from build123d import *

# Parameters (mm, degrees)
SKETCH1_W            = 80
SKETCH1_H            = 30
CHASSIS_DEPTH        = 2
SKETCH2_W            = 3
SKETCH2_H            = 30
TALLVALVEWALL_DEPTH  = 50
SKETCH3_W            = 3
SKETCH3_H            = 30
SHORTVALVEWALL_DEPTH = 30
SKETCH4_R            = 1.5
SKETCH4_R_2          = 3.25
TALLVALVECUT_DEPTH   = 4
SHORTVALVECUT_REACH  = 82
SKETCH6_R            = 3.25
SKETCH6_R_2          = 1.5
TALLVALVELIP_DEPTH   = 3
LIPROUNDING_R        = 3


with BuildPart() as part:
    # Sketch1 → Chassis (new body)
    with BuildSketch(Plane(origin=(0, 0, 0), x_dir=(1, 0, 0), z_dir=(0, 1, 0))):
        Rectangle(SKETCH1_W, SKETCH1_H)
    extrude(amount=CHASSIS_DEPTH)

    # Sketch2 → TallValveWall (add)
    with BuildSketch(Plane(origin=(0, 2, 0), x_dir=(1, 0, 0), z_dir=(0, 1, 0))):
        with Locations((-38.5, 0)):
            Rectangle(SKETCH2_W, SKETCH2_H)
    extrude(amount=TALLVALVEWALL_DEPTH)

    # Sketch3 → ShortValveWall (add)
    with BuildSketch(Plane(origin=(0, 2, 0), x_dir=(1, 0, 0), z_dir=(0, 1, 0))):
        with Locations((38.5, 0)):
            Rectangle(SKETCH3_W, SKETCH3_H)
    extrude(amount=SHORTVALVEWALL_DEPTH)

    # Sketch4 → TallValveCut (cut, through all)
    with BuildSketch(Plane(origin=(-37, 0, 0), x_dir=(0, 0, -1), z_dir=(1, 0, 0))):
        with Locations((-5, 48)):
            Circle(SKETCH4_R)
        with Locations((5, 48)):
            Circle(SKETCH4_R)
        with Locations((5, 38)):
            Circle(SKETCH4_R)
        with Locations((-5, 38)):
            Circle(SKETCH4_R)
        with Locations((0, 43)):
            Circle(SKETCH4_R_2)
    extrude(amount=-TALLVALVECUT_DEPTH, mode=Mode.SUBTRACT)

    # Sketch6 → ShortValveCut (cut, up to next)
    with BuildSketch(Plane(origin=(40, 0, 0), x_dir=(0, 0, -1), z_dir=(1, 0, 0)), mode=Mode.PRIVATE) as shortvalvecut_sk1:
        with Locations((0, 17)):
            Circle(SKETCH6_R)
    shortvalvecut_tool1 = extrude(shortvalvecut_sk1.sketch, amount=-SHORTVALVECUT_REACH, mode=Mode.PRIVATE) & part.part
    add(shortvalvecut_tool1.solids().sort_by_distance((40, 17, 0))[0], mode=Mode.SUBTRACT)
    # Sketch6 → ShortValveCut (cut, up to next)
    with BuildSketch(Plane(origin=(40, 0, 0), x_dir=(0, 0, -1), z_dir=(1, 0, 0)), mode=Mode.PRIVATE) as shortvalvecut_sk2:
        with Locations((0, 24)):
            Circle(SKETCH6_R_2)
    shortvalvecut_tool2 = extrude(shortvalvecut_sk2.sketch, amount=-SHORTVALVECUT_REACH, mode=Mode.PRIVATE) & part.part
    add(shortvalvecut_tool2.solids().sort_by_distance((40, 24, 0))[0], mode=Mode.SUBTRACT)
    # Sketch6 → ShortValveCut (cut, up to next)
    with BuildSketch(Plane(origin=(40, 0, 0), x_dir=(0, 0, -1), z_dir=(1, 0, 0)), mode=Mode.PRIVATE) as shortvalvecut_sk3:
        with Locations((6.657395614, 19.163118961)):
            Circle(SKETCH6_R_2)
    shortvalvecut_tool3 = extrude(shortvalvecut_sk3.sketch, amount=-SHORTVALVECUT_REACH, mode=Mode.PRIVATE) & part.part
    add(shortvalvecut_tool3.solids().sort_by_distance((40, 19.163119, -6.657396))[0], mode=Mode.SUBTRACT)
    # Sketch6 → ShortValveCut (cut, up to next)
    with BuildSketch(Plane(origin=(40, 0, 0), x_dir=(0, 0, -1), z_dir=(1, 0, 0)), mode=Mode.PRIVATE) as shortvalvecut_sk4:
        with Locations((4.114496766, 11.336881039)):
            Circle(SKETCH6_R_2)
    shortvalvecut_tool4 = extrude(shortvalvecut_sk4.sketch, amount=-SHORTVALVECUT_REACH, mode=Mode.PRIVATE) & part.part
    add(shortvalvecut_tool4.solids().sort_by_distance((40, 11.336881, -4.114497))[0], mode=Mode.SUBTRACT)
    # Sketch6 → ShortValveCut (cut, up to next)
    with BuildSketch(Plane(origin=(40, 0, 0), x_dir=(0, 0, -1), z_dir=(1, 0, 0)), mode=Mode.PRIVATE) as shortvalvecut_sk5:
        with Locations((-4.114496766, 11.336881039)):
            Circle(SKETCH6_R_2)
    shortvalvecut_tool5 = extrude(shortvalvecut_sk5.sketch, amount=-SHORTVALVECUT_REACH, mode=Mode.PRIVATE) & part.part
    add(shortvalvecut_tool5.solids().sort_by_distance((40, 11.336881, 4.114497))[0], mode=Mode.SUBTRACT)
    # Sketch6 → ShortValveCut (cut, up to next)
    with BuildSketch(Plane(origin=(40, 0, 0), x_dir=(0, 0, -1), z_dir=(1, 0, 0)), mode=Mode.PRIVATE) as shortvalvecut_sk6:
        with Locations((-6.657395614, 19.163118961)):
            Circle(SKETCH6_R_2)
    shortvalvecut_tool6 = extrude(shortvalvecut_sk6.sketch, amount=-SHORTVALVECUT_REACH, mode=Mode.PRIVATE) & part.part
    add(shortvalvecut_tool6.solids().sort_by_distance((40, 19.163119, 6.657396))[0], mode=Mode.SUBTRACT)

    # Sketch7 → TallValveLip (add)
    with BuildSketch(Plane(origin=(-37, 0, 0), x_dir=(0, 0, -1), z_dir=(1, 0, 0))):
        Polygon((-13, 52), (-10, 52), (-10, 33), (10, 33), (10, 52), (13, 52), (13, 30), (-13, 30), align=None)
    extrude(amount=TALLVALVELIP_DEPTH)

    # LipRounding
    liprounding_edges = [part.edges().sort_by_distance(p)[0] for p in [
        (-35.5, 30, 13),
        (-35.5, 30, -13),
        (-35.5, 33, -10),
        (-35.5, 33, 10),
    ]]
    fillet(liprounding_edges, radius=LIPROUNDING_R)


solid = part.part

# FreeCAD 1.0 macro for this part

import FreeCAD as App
import Part
import Sketcher
from FreeCAD import Vector


def edges_at(feature, points):
    """Names of the edges that pass closest to the given points."""
    edges = feature.Shape.Edges
    near = lambda p: min(range(len(edges)), key=lambda i: edges[i].distToShape(Part.Vertex(*p))[0])
    return sorted({f"Edge{near(p) + 1}" for p in points})

doc = App.newDocument("Part")
body = doc.addObject("PartDesign::Body", "Body")

# Sketch on XZ plane
sketch1 = doc.addObject("Sketcher::SketchObject", "Sketch")
body.addObject(sketch1)
sketch1.AttachmentSupport = (doc.XZ_Plane, [""])
sketch1.MapMode = "FlatFace"
sketch1.addGeometry([
    Part.LineSegment(Vector(-40, -15, 0), Vector(-40, 15, 0)),
    Part.LineSegment(Vector(-40, 15, 0), Vector(40, 15, 0)),
    Part.LineSegment(Vector(40, 15, 0), Vector(40, -15, 0)),
    Part.LineSegment(Vector(40, -15, 0), Vector(-40, -15, 0)),
], False)
sketch1.addConstraint([
    Sketcher.Constraint("Coincident", 0, 2, 1, 1),
    Sketcher.Constraint("Coincident", 1, 2, 2, 1),
    Sketcher.Constraint("Coincident", 2, 2, 3, 1),
    Sketcher.Constraint("Coincident", 3, 2, 0, 1),
    Sketcher.Constraint("Vertical", 0),
    Sketcher.Constraint("Horizontal", 1),
    Sketcher.Constraint("Vertical", 2),
    Sketcher.Constraint("Horizontal", 3),
    Sketcher.Constraint("Symmetric", 0, 2, 2, 2, -1, 1),
    Sketcher.Constraint("DistanceX", 1, 1, 1, 2, 80.0),
    Sketcher.Constraint("DistanceY", 0, 1, 0, 2, 30.0),
])
pad1 = doc.addObject("PartDesign::Pad", "Pad")
body.addObject(pad1)
pad1.Profile = sketch1
pad1.Length = 2
pad1.Reversed = True

# Sketch on XZ plane
sketch2 = doc.addObject("Sketcher::SketchObject", "Sketch001")
body.addObject(sketch2)
sketch2.AttachmentSupport = (doc.XZ_Plane, [""])
sketch2.MapMode = "FlatFace"
sketch2.AttachmentOffset = App.Placement(Vector(0, 0, -2), App.Rotation())
sketch2.addGeometry([
    Part.LineSegment(Vector(-40, -15, 0), Vector(-40, 15, 0)),
    Part.LineSegment(Vector(-40, 15, 0), Vector(-37, 15, 0)),
    Part.LineSegment(Vector(-37, 15, 0), Vector(-37, -15, 0)),
    Part.LineSegment(Vector(-37, -15, 0), Vector(-40, -15, 0)),
], False)
sketch2.addConstraint([
    Sketcher.Constraint("Coincident", 0, 2, 1, 1),
    Sketcher.Constraint("Coincident", 1, 2, 2, 1),
    Sketcher.Constraint("Coincident", 2, 2, 3, 1),
    Sketcher.Constraint("Coincident", 3, 2, 0, 1),
    Sketcher.Constraint("Vertical", 0),
    Sketcher.Constraint("Horizontal", 1),
    Sketcher.Constraint("Vertical", 2),
    Sketcher.Constraint("Horizontal", 3),
    Sketcher.Constraint("DistanceX", 1, 1, 1, 2, 3.0),
    Sketcher.Constraint("DistanceY", 0, 1, 0, 2, 30.0),
    Sketcher.Constraint("DistanceX", 0, 2, -1, 1, 40.0),
    Sketcher.Constraint("DistanceY", -1, 1, 0, 2, 15.0),
])
pad2 = doc.addObject("PartDesign::Pad", "Pad001")
body.addObject(pad2)
pad2.Profile = sketch2
pad2.Length = 50
pad2.Reversed = True

# Sketch on XZ plane
sketch3 = doc.addObject("Sketcher::SketchObject", "Sketch002")
body.addObject(sketch3)
sketch3.AttachmentSupport = (doc.XZ_Plane, [""])
sketch3.MapMode = "FlatFace"
sketch3.AttachmentOffset = App.Placement(Vector(0, 0, -2), App.Rotation())
sketch3.addGeometry([
    Part.LineSegment(Vector(37, -15, 0), Vector(37, 15, 0)),
    Part.LineSegment(Vector(37, 15, 0), Vector(40, 15, 0)),
    Part.LineSegment(Vector(40, 15, 0), Vector(40, -15, 0)),
    Part.LineSegment(Vector(40, -15, 0), Vector(37, -15, 0)),
], False)
sketch3.addConstraint([
    Sketcher.Constraint("Coincident", 0, 2, 1, 1),
    Sketcher.Constraint("Coincident", 1, 2, 2, 1),
    Sketcher.Constraint("Coincident", 2, 2, 3, 1),
    Sketcher.Constraint("Coincident", 3, 2, 0, 1),
    Sketcher.Constraint("Vertical", 0),
    Sketcher.Constraint("Horizontal", 1),
    Sketcher.Constraint("Vertical", 2),
    Sketcher.Constraint("Horizontal", 3),
    Sketcher.Constraint("DistanceX", 1, 1, 1, 2, 3.0),
    Sketcher.Constraint("DistanceY", 0, 1, 0, 2, 30.0),
    Sketcher.Constraint("DistanceX", -1, 1, 0, 2, 37.0),
    Sketcher.Constraint("DistanceY", -1, 1, 0, 2, 15.0),
])
pad3 = doc.addObject("PartDesign::Pad", "Pad002")
body.addObject(pad3)
pad3.Profile = sketch3
pad3.Length = 30
pad3.Reversed = True

# Sketch on YZ plane
sketch4 = doc.addObject("Sketcher::SketchObject", "Sketch003")
body.addObject(sketch4)
sketch4.AttachmentSupport = (doc.YZ_Plane, [""])
sketch4.MapMode = "FlatFace"
sketch4.AttachmentOffset = App.Placement(Vector(0, 0, -37), App.Rotation())
sketch4.addGeometry([
    Part.Circle(Vector(48, 5, 0), Vector(0, 0, 1), 1.5),  # 0
    Part.Circle(Vector(48, -5, 0), Vector(0, 0, 1), 1.5),  # 1
    Part.Circle(Vector(38, -5, 0), Vector(0, 0, 1), 1.5),  # 2
    Part.Circle(Vector(38, 5, 0), Vector(0, 0, 1), 1.5),  # 3
    Part.Circle(Vector(43, 0, 0), Vector(0, 0, 1), 3.2),  # 4
], False)
sketch4.addConstraint([
    Sketcher.Constraint("Equal", 0, 1),
    Sketcher.Constraint("Equal", 1, 2),
    Sketcher.Constraint("Equal", 2, 3),
    Sketcher.Constraint("Symmetric", 0, 3, 1, 3, -1),
    Sketcher.Constraint("Symmetric", 2, 3, 3, 3, -1),
    Sketcher.Constraint("PointOnObject", 4, 3, -1),
    Sketcher.Constraint("Horizontal", 1, 3, 2, 3),
    Sketcher.Constraint("Diameter", 0, 3.0),
    Sketcher.Constraint("Diameter", 4, 6.5),
    Sketcher.Constraint("DistanceX", -1, 1, 0, 3, 48.0),
    Sketcher.Constraint("DistanceY", -1, 1, 0, 3, 5.0),
    Sketcher.Constraint("DistanceX", -1, 1, 2, 3, 38.0),
    Sketcher.Constraint("DistanceX", -1, 1, 4, 3, 43.0),
])
pocket1 = doc.addObject("PartDesign::Pocket", "Pocket")
body.addObject(pocket1)
pocket1.Profile = sketch4
pocket1.Type = "ThroughAll"

# Sketch on YZ plane
sketch5 = doc.addObject("Sketcher::SketchObject", "Sketch004")
body.addObject(sketch5)
sketch5.AttachmentSupport = (doc.YZ_Plane, [""])
sketch5.MapMode = "FlatFace"
sketch5.AttachmentOffset = App.Placement(Vector(0, 0, 40), App.Rotation())
sketch5.addGeometry(Part.Circle(Vector(17, 0, 0), Vector(0, 0, 1), 3.2), False)
sketch5.addConstraint([
    Sketcher.Constraint("PointOnObject", 0, 3, -1),
    Sketcher.Constraint("Diameter", 0, 6.5),
    Sketcher.Constraint("DistanceX", -1, 1, 0, 3, 17.0),
])
pocket2 = doc.addObject("PartDesign::Pocket", "Pocket001")
body.addObject(pocket2)
pocket2.Profile = sketch5
pocket2.Type = "UpToFirst"

# Sketch on YZ plane
sketch6 = doc.addObject("Sketcher::SketchObject", "Sketch005")
body.addObject(sketch6)
sketch6.AttachmentSupport = (doc.YZ_Plane, [""])
sketch6.MapMode = "FlatFace"
sketch6.AttachmentOffset = App.Placement(Vector(0, 0, 40), App.Rotation())
sketch6.addGeometry(Part.Circle(Vector(24, 0, 0), Vector(0, 0, 1), 1.5), False)
sketch6.addConstraint([
    Sketcher.Constraint("PointOnObject", 0, 3, -1),
    Sketcher.Constraint("Diameter", 0, 3.0),
    Sketcher.Constraint("DistanceX", -1, 1, 0, 3, 24.0),
])
pocket3 = doc.addObject("PartDesign::Pocket", "Pocket002")
body.addObject(pocket3)
pocket3.Profile = sketch6
pocket3.Type = "UpToFirst"

# Sketch on YZ plane
sketch7 = doc.addObject("Sketcher::SketchObject", "Sketch006")
body.addObject(sketch7)
sketch7.AttachmentSupport = (doc.YZ_Plane, [""])
sketch7.MapMode = "FlatFace"
sketch7.AttachmentOffset = App.Placement(Vector(0, 0, 40), App.Rotation())
sketch7.addGeometry(Part.Circle(Vector(19.2, -6.7, 0), Vector(0, 0, 1), 1.5), False)
sketch7.addConstraint([
    Sketcher.Constraint("Diameter", 0, 3.0),
    Sketcher.Constraint("DistanceX", -1, 1, 0, 3, 19.163119),
    Sketcher.Constraint("DistanceY", 0, 3, -1, 1, 6.657396),
])
pocket4 = doc.addObject("PartDesign::Pocket", "Pocket003")
body.addObject(pocket4)
pocket4.Profile = sketch7
pocket4.Type = "UpToFirst"

# Sketch on YZ plane
sketch8 = doc.addObject("Sketcher::SketchObject", "Sketch007")
body.addObject(sketch8)
sketch8.AttachmentSupport = (doc.YZ_Plane, [""])
sketch8.MapMode = "FlatFace"
sketch8.AttachmentOffset = App.Placement(Vector(0, 0, 40), App.Rotation())
sketch8.addGeometry(Part.Circle(Vector(11.3, -4.1, 0), Vector(0, 0, 1), 1.5), False)
sketch8.addConstraint([
    Sketcher.Constraint("Diameter", 0, 3.0),
    Sketcher.Constraint("DistanceX", -1, 1, 0, 3, 11.336881),
    Sketcher.Constraint("DistanceY", 0, 3, -1, 1, 4.114497),
])
pocket5 = doc.addObject("PartDesign::Pocket", "Pocket004")
body.addObject(pocket5)
pocket5.Profile = sketch8
pocket5.Type = "UpToFirst"

# Sketch on YZ plane
sketch9 = doc.addObject("Sketcher::SketchObject", "Sketch008")
body.addObject(sketch9)
sketch9.AttachmentSupport = (doc.YZ_Plane, [""])
sketch9.MapMode = "FlatFace"
sketch9.AttachmentOffset = App.Placement(Vector(0, 0, 40), App.Rotation())
sketch9.addGeometry(Part.Circle(Vector(11.3, 4.1, 0), Vector(0, 0, 1), 1.5), False)
sketch9.addConstraint([
    Sketcher.Constraint("Diameter", 0, 3.0),
    Sketcher.Constraint("DistanceX", -1, 1, 0, 3, 11.336881),
    Sketcher.Constraint("DistanceY", -1, 1, 0, 3, 4.114497),
])
pocket6 = doc.addObject("PartDesign::Pocket", "Pocket005")
body.addObject(pocket6)
pocket6.Profile = sketch9
pocket6.Type = "UpToFirst"

# Sketch on YZ plane
sketch10 = doc.addObject("Sketcher::SketchObject", "Sketch009")
body.addObject(sketch10)
sketch10.AttachmentSupport = (doc.YZ_Plane, [""])
sketch10.MapMode = "FlatFace"
sketch10.AttachmentOffset = App.Placement(Vector(0, 0, 40), App.Rotation())
sketch10.addGeometry(Part.Circle(Vector(19.2, 6.7, 0), Vector(0, 0, 1), 1.5), False)
sketch10.addConstraint([
    Sketcher.Constraint("Diameter", 0, 3.0),
    Sketcher.Constraint("DistanceX", -1, 1, 0, 3, 19.163119),
    Sketcher.Constraint("DistanceY", -1, 1, 0, 3, 6.657396),
])
pocket7 = doc.addObject("PartDesign::Pocket", "Pocket006")
body.addObject(pocket7)
pocket7.Profile = sketch10
pocket7.Type = "UpToFirst"

# Sketch on YZ plane
sketch11 = doc.addObject("Sketcher::SketchObject", "Sketch010")
body.addObject(sketch11)
sketch11.AttachmentSupport = (doc.YZ_Plane, [""])
sketch11.MapMode = "FlatFace"
sketch11.AttachmentOffset = App.Placement(Vector(0, 0, -37), App.Rotation())
sketch11.addGeometry([
    Part.LineSegment(Vector(52, 10, 0), Vector(52, 13, 0)),  # 0
    Part.LineSegment(Vector(52, 13, 0), Vector(30, 13, 0)),  # 1
    Part.LineSegment(Vector(30, 13, 0), Vector(30, -13, 0)),  # 2
    Part.LineSegment(Vector(30, -13, 0), Vector(52, -13, 0)),  # 3
    Part.LineSegment(Vector(52, -13, 0), Vector(52, -10, 0)),  # 4
    Part.LineSegment(Vector(52, -10, 0), Vector(33, -10, 0)),  # 5
    Part.LineSegment(Vector(33, -10, 0), Vector(33, 10, 0)),  # 6
    Part.LineSegment(Vector(33, 10, 0), Vector(52, 10, 0)),  # 7
], False)
sketch11.addConstraint([
    Sketcher.Constraint("Coincident", 0, 2, 1, 1),
    Sketcher.Constraint("Coincident", 1, 2, 2, 1),
    Sketcher.Constraint("Coincident", 2, 2, 3, 1),
    Sketcher.Constraint("Coincident", 3, 2, 4, 1),
    Sketcher.Constraint("Coincident", 4, 2, 5, 1),
    Sketcher.Constraint("Coincident", 5, 2, 6, 1),
    Sketcher.Constraint("Coincident", 6, 2, 7, 1),
    Sketcher.Constraint("Coincident", 7, 2, 0, 1),
    Sketcher.Constraint("Vertical", 0),
    Sketcher.Constraint("Horizontal", 1),
    Sketcher.Constraint("Vertical", 2),
    Sketcher.Constraint("Horizontal", 3),
    Sketcher.Constraint("Vertical", 4),
    Sketcher.Constraint("Horizontal", 5),
    Sketcher.Constraint("Vertical", 6),
    Sketcher.Constraint("Horizontal", 7),
    Sketcher.Constraint("Symmetric", 0, 2, 3, 2, -1),
    Sketcher.Constraint("Equal", 0, 4),
    Sketcher.Constraint("DistanceX", 1, 2, 1, 1, 22.0),
    Sketcher.Constraint("DistanceX", 5, 2, 5, 1, 19.0),
    Sketcher.Constraint("DistanceY", 0, 1, 0, 2, 3.0),
    Sketcher.Constraint("DistanceY", 2, 2, 2, 1, 26.0),
    Sketcher.Constraint("DistanceX", -1, 1, 0, 2, 52.0),
])
pad4 = doc.addObject("PartDesign::Pad", "Pad003")
body.addObject(pad4)
pad4.Profile = sketch11
pad4.Length = 3
doc.recompute()

fillet = doc.addObject("PartDesign::Fillet", "Fillet")
body.addObject(fillet)
fillet.Base = (pad4, edges_at(pad4, [
    (-35.5, 30, 13),
    (-35.5, 30, -13),
    (-35.5, 33, -10),
    (-35.5, 33, 10),
]))
fillet.Radius = 3

doc.recompute()
